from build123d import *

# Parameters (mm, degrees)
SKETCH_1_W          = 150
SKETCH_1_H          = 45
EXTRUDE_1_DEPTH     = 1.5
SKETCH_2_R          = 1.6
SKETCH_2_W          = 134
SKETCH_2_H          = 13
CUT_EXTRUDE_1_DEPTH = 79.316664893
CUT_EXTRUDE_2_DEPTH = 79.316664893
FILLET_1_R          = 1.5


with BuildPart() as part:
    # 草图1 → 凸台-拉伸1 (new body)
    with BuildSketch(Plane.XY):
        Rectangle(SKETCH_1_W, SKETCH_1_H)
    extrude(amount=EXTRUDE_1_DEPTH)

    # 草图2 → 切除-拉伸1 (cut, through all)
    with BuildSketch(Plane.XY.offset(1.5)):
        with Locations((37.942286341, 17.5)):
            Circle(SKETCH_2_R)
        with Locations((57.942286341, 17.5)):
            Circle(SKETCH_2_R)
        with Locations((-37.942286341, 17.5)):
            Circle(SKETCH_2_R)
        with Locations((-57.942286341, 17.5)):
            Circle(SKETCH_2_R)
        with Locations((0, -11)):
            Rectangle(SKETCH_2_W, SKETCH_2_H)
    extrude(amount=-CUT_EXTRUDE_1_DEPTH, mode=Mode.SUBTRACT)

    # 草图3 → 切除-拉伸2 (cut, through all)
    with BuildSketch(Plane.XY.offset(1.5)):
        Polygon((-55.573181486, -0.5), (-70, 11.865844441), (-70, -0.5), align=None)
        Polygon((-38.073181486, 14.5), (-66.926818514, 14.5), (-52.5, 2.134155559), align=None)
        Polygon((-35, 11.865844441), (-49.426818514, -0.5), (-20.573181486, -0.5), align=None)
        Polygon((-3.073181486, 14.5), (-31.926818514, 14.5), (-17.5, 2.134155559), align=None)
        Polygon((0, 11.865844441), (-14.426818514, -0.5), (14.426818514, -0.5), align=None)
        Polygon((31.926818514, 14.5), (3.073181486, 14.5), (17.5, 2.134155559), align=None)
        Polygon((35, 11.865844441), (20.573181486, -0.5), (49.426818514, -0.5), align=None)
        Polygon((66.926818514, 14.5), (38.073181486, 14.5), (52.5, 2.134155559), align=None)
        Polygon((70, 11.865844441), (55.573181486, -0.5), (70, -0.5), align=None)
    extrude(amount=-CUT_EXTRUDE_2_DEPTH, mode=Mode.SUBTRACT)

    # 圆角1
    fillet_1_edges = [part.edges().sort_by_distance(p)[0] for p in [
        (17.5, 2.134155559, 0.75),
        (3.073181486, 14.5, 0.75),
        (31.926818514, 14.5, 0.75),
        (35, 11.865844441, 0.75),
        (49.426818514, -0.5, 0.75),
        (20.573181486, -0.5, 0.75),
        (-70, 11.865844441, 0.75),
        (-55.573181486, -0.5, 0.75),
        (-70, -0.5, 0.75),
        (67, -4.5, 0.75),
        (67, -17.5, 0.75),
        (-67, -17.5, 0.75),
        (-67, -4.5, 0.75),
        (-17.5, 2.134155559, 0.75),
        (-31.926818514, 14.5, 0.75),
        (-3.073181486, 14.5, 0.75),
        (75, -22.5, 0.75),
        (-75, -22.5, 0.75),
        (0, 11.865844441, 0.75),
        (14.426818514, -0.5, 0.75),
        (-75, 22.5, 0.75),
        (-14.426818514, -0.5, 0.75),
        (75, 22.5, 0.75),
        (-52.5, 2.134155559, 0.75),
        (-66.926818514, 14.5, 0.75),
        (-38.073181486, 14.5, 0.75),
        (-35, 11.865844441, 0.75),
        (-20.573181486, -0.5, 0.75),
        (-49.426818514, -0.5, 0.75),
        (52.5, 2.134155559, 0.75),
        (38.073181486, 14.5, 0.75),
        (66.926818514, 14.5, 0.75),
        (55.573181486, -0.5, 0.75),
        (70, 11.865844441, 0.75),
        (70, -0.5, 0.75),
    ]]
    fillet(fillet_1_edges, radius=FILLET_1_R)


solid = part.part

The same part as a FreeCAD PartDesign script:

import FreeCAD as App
import Part
import Sketcher
from FreeCAD import Vector


def edges_at(feature, points):
    """Names of the edges that pass closest to the given points."""
    edges = feature.Shape.Edges
    near = lambda p: min(range(len(edges)), key=lambda i: edges[i].distToShape(Part.Vertex(*p))[0])
    return sorted({f"Edge{near(p) + 1}" for p in points})


def add_polygon(sketch, points):
    """Adds a closed chain of lines whose ends are joined by coincident constraints."""
    first, n = sketch.GeometryCount, len(points)
    for a, b in zip(points, points[1:] + points[:1]):
        sketch.addGeometry(Part.LineSegment(App.Vector(*a, 0), App.Vector(*b, 0)), False)
    for i in range(n):
        sketch.addConstraint(Sketcher.Constraint("Coincident", first + i, 2, first + (i + 1) % n, 1))

doc = App.newDocument("Part")
body = doc.addObject("PartDesign::Body", "Body")

sketch1 = body.newObject("Sketcher::SketchObject", "Sketch")
sketch1.AttachmentSupport = (doc.getObject("XY_Plane"), [""])
sketch1.MapMode = "FlatFace"
add_polygon(sketch1, [(-75, 22), (-75, -22), (75, -22), (75, 22)])
sketch1.addConstraint([
    Sketcher.Constraint("Vertical", 0),
    Sketcher.Constraint("Horizontal", 1),
    Sketcher.Constraint("Vertical", 2),
    Sketcher.Constraint("Horizontal", 3),
    Sketcher.Constraint("Symmetric", 0, 2, 2, 2, -1, 1),
    Sketcher.Constraint("DistanceX", 1, 1, 1, 2, 150.0),
    Sketcher.Constraint("DistanceY", 0, 2, 0, 1, 45.0),
])
pad1 = body.newObject("PartDesign::Pad", "Pad")
pad1.Profile = sketch1
pad1.Length = 1.5

sketch2 = body.newObject("Sketcher::SketchObject", "Sketch001")
sketch2.AttachmentSupport = (doc.getObject("XY_Plane"), [""])
sketch2.MapMode = "FlatFace"
sketch2.AttachmentOffset = App.Placement(Vector(0, 0, 1.5), App.Rotation())
sketch2.addGeometry(Part.Circle(Vector(37.9, 17.5, 0), Vector(0, 0, 1), 1.6), False)
sketch2.addGeometry(Part.Circle(Vector(57.9, 17.5, 0), Vector(0, 0, 1), 1.6), False)
sketch2.addGeometry(Part.Circle(Vector(-37.9, 17.5, 0), Vector(0, 0, 1), 1.6), False)
sketch2.addGeometry(Part.Circle(Vector(-57.9, 17.5, 0), Vector(0, 0, 1), 1.6), False)
add_polygon(sketch2, [(-67, -4.5), (-67, -17.5), (67, -17.5), (67, -4.5)])
sketch2.addConstraint([
    Sketcher.Constraint("Vertical", 4),
    Sketcher.Constraint("Horizontal", 5),
    Sketcher.Constraint("Vertical", 6),
    Sketcher.Constraint("Horizontal", 7),
    Sketcher.Constraint("Equal", 0, 1),
    Sketcher.Constraint("Equal", 1, 2),
    Sketcher.Constraint("Equal", 2, 3),
    Sketcher.Constraint("Symmetric", 0, 3, 2, 3, -2),
    Sketcher.Constraint("Symmetric", 1, 3, 3, 3, -2),
    Sketcher.Constraint("Horizontal", 0, 3, 1, 3),
    Sketcher.Constraint("Diameter", 0, 3.2),
    Sketcher.Constraint("DistanceX", 5, 1, 5, 2, 134.0),
    Sketcher.Constraint("DistanceY", 4, 2, 4, 1, 13.0),
    Sketcher.Constraint("DistanceX", 4, 2, -1, 1, 67.0),
    Sketcher.Constraint("DistanceX", 0, 3, 1, 3, 20.0),
    Sketcher.Constraint("DistanceY", 4, 2, 3, 3, 35.0),
    Sketcher.Constraint("DistanceY", -1, 1, 0, 3, 17.5),
    Sketcher.Constraint("DistanceX", -1, 1, 0, 3, 37.942286),
])
pocket1 = body.newObject("PartDesign::Pocket", "Pocket")
pocket1.Profile = sketch2
pocket1.Type = "ThroughAll"

sketch3 = body.newObject("Sketcher::SketchObject", "Sketch002")
sketch3.AttachmentSupport = (doc.getObject("XY_Plane"), [""])
sketch3.MapMode = "FlatFace"
sketch3.AttachmentOffset = App.Placement(Vector(0, 0, 1.5), App.Rotation())
add_polygon(sketch3, [(-56, 0), (-70, 12), (-70, 0)])
add_polygon(sketch3, [(-38, 14), (-67, 14), (-52, 2)])
add_polygon(sketch3, [(-35, 12), (-49, 0), (-21, 0)])
add_polygon(sketch3, [(-3, 14), (-32, 14), (-18, 2)])
add_polygon(sketch3, [(0, 12), (-14, 0), (14, 0)])
add_polygon(sketch3, [(32, 14), (3, 14), (18, 2)])
add_polygon(sketch3, [(35, 12), (21, 0), (49, 0)])
add_polygon(sketch3, [(67, 14), (38, 14), (52, 2)])
add_polygon(sketch3, [(70, 12), (56, 0), (70, 0)])
sketch3.addConstraint([
    Sketcher.Constraint("Vertical", 1),
    Sketcher.Constraint("Horizontal", 2),
    Sketcher.Constraint("Horizontal", 3),
    Sketcher.Constraint("Horizontal", 7),
    Sketcher.Constraint("Horizontal", 9),
    Sketcher.Constraint("Horizontal", 13),
    Sketcher.Constraint("Horizontal", 15),
    Sketcher.Constraint("Horizontal", 19),
    Sketcher.Constraint("Horizontal", 21),
    Sketcher.Constraint("Horizontal", 25),
    Sketcher.Constraint("Vertical", 26),
    Sketcher.Constraint("Symmetric", 11, 2, 15, 2, -2),
    Sketcher.Constraint("Symmetric", 10, 2, 16, 2, -2),
    Sketcher.Constraint("Symmetric", 7, 2, 18, 2, -2),
    Sketcher.Constraint("Symmetric", 8, 2, 20, 2, -2),
    Sketcher.Constraint("Symmetric", 5, 2, 21, 2, -2),
    Sketcher.Constraint("Symmetric", 4, 2, 22, 2, -2),
    Sketcher.Constraint("Symmetric", 2, 2, 24, 2, -2),
    Sketcher.Constraint("Symmetric", 0, 2, 26, 2, -2),
    Sketcher.Constraint("PointOnObject", 14, 2, -2),
    Sketcher.Constraint("Parallel", 0, 4),
    Sketcher.Constraint("Parallel", 5, 6),
    Sketcher.Constraint("Parallel", 4, 8),
    Sketcher.Constraint("Parallel", 8, 10),
    Sketcher.Constraint("Parallel", 6, 11),
    Sketcher.Constraint("Parallel", 11, 12),
    Sketcher.Constraint("Parallel", 10, 14),
    Sketcher.Constraint("Parallel", 14, 16),
    Sketcher.Constraint("Parallel", 12, 17),
    Sketcher.Constraint("Parallel", 16, 20),
    Sketcher.Constraint("Parallel", 18, 23),
    Sketcher.Constraint("Horizontal", 2, 2, 6, 2),
    Sketcher.Constraint("Horizontal", 0, 2, 8, 2),
    Sketcher.Constraint("Horizontal", 5, 2, 9, 2),
    Sketcher.Constraint("Horizontal", 4, 2, 10, 2),
    Sketcher.Constraint("Horizontal", 7, 2, 12, 2),
    Sketcher.Constraint("Horizontal", 8, 2, 14, 2),
    Sketcher.Constraint("Equal", 3, 7),
    Sketcher.Constraint("DistanceX", 0, 2, -1, 1, 70.0),
    Sketcher.Constraint("DistanceX", 8, 2, -1, 1, 35.0),
    Sketcher.Constraint("DistanceY", 1, 2, 3, 2, 15.0),
    Sketcher.Constraint("DistanceX", 5, 2, 11, 2, 35.0),
    Sketcher.Constraint("DistanceX", 11, 2, 17, 2, 35.0),
    Sketcher.Constraint("DistanceY", 1, 2, -1, 1, 0.5),
    Sketcher.Constraint("DistanceX", 2, 1, 2, 2, 14.426819),
    Sketcher.Constraint("DistanceY", 1, 2, 1, 1, 12.365844),
])
pocket2 = body.newObject("PartDesign::Pocket", "Pocket001")
pocket2.Profile = sketch3
pocket2.Type = "ThroughAll"
doc.recompute()

fillet = body.newObject("PartDesign::Fillet", "Fillet")
fillet.Base = (pocket2, edges_at(pocket2, [
    (17.5, 2.134, 0.75),
    (3.073, 14.5, 0.75),
    (31.927, 14.5, 0.75),
    (35, 11.866, 0.75),
    (49.427, -0.5, 0.75),
    (20.573, -0.5, 0.75),
    (-70, 11.866, 0.75),
    (-55.573, -0.5, 0.75),
    (-70, -0.5, 0.75),
    (67, -4.5, 0.75),
    (67, -17.5, 0.75),
    (-67, -17.5, 0.75),
    (-67, -4.5, 0.75),
    (-17.5, 2.134, 0.75),
    (-31.927, 14.5, 0.75),
    (-3.073, 14.5, 0.75),
    (75, -22.5, 0.75),
    (-75, -22.5, 0.75),
    (0, 11.866, 0.75),
    (14.427, -0.5, 0.75),
    (-75, 22.5, 0.75),
    (-14.427, -0.5, 0.75),
    (75, 22.5, 0.75),
    (-52.5, 2.134, 0.75),
    (-66.927, 14.5, 0.75),
    (-38.073, 14.5, 0.75),
    (-35, 11.866, 0.75),
    (-20.573, -0.5, 0.75),
    (-49.427, -0.5, 0.75),
    (52.5, 2.134, 0.75),
    (38.073, 14.5, 0.75),
    (66.927, 14.5, 0.75),
    (55.573, -0.5, 0.75),
    (70, 11.866, 0.75),
    (70, -0.5, 0.75),
]))
fillet.Radius = 1.5

doc.recompute()
